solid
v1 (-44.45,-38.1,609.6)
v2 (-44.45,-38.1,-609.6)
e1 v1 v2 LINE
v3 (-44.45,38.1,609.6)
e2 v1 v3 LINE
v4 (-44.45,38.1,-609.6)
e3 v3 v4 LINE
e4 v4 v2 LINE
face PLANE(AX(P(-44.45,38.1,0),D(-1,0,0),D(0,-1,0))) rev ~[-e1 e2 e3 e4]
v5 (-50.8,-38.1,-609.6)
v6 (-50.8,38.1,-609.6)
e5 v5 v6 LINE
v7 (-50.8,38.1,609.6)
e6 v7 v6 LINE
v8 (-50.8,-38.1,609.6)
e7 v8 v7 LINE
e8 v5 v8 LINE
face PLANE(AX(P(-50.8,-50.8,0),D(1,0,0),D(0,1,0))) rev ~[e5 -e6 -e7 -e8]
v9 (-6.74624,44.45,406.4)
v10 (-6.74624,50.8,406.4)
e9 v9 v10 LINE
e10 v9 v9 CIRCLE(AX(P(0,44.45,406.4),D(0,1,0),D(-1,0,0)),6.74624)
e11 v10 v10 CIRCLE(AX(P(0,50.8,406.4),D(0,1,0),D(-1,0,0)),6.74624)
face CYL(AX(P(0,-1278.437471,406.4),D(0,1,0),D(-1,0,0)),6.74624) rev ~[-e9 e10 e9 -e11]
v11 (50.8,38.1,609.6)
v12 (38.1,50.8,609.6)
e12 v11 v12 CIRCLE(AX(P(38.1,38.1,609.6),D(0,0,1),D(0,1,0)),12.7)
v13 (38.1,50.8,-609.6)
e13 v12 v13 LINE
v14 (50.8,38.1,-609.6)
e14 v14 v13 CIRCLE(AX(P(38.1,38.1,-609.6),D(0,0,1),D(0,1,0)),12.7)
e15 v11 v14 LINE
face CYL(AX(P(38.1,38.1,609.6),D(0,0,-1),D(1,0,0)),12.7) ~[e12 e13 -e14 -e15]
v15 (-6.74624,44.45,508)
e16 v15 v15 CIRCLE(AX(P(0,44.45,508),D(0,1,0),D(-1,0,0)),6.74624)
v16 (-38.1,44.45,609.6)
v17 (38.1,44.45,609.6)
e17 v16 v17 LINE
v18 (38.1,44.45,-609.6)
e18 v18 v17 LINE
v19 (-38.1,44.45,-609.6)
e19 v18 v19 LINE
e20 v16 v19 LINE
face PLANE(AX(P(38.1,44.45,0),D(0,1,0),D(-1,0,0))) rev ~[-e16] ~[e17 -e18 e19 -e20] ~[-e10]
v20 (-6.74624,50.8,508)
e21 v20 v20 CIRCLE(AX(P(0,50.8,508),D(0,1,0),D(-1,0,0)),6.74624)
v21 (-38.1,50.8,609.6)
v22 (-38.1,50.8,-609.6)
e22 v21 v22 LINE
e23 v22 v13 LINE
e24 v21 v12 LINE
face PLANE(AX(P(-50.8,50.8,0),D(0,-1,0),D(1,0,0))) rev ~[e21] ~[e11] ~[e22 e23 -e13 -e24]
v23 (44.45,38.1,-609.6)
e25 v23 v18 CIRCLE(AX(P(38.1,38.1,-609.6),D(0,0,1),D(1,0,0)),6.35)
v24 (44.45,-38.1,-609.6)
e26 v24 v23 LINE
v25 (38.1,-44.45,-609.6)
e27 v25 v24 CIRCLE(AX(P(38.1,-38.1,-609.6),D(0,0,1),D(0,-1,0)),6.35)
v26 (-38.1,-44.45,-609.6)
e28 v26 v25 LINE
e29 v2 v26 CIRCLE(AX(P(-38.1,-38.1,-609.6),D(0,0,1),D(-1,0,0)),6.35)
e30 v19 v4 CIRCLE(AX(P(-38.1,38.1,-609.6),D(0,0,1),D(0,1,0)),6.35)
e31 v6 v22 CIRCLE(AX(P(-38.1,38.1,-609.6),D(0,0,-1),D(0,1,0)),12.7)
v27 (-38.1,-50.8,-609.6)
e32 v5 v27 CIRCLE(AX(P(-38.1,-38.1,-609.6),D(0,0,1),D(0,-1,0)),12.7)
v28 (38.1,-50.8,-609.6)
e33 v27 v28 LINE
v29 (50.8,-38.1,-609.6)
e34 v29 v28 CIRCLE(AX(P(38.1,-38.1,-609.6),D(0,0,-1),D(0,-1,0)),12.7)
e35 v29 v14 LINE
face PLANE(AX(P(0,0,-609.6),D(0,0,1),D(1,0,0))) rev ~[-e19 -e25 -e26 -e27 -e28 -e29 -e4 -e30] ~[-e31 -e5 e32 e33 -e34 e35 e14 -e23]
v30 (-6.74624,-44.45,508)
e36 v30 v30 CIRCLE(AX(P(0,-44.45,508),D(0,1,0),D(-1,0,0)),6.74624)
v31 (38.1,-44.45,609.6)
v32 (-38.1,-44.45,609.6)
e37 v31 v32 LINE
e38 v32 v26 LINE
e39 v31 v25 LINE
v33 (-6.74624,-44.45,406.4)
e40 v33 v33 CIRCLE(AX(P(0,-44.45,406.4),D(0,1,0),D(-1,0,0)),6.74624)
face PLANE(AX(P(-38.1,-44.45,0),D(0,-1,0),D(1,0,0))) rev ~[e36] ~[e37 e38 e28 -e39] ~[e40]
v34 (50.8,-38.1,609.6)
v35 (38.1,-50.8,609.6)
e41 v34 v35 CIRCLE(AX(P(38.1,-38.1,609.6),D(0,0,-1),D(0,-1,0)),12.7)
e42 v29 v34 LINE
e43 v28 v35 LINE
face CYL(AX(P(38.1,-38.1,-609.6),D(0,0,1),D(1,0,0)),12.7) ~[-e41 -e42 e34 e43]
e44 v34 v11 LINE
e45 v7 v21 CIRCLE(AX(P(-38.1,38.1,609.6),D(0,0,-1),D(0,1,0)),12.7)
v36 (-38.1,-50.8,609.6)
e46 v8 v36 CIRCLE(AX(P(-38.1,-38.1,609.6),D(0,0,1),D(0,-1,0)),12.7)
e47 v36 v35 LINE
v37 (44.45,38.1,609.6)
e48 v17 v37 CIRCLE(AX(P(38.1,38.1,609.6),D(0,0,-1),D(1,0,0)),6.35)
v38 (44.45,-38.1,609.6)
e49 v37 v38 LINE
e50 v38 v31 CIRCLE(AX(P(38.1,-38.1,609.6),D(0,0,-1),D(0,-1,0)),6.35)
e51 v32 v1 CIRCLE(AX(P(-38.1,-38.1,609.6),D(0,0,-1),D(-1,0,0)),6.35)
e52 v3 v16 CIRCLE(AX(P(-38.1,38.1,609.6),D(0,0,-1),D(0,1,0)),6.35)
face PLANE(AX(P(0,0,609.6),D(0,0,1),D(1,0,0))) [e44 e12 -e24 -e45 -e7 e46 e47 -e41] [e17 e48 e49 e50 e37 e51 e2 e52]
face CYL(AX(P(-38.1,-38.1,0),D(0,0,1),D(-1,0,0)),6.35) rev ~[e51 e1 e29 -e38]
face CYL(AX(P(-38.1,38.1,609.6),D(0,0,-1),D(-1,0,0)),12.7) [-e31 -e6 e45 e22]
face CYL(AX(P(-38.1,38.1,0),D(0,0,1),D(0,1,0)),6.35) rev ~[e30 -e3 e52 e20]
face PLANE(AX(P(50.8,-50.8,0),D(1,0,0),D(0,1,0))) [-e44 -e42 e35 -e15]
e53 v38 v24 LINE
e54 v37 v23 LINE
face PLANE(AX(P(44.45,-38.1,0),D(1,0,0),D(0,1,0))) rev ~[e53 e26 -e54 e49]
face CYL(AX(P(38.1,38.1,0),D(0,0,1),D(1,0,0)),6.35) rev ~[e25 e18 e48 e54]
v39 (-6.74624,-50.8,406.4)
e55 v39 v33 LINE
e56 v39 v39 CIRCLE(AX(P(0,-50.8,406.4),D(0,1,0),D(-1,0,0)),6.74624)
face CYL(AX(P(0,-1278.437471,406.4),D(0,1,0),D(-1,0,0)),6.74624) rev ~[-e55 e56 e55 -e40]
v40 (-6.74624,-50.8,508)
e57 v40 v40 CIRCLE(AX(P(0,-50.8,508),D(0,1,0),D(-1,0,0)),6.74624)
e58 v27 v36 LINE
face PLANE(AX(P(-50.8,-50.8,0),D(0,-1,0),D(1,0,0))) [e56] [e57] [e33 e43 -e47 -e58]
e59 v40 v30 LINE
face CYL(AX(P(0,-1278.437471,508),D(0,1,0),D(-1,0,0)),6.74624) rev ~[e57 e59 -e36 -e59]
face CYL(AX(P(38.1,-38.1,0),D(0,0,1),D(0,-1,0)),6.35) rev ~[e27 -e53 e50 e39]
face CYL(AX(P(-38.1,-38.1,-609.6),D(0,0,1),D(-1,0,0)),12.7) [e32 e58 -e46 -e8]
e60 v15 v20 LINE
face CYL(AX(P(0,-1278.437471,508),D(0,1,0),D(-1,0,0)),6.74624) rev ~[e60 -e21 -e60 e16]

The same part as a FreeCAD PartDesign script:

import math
import FreeCAD as App
import Part
import Sketcher

V = App.Vector
Q = App.Units.Quantity


def edges_at(feature, points):
    """Names of the edges that pass closest to the given points."""
    edges = feature.Shape.Edges
    near = lambda p: min(range(len(edges)), key=lambda i: edges[i].distToShape(Part.Vertex(*p))[0])
    return sorted({f"Edge{near(p) + 1}" for p in points})


def add_polygon(sketch, points):
    """Adds a closed chain of lines whose ends are joined by coincident constraints."""
    first, n = sketch.GeometryCount, len(points)
    for a, b in zip(points, points[1:] + points[:1]):
        sketch.addGeometry(Part.LineSegment(App.Vector(*a, 0), App.Vector(*b, 0)), False)
    for i in range(n):
        sketch.addConstraint(Sketcher.Constraint("Coincident", first + i, 2, first + (i + 1) % n, 1))

doc = App.newDocument("Part")
body = doc.addObject("PartDesign::Body", "Body")

# Sketch on XY plane
sketch1 = doc.addObject("Sketcher::SketchObject", "Sketch")
body.addObject(sketch1)
sketch1.AttachmentSupport = (doc.XY_Plane, [""])
sketch1.MapMode = "FlatFace"
add_polygon(sketch1, [(-51, 51), (-51, -51), (51, -51), (51, 51)])  # lines 0-3
sketch1.addConstraint([
    Sketcher.Constraint("Vertical", 0),
    Sketcher.Constraint("Horizontal", 1),
    Sketcher.Constraint("Vertical", 2),
    Sketcher.Constraint("Horizontal", 3),
    Sketcher.Constraint("Symmetric", 0, 2, 2, 2, -1, 1),
    Sketcher.Constraint("Equal", 3, 0),
    Sketcher.Constraint("DistanceX", 1, 1, 1, 2, Q("4 in")),
])
pad1 = doc.addObject("PartDesign::Pad", "Pad")
body.addObject(pad1)
pad1.Profile = sketch1
pad1.Length = Q("48 in")
pad1.Midplane = True
doc.recompute()

fillet = doc.addObject("PartDesign::Fillet", "Fillet")
body.addObject(fillet)
fillet.Base = (pad1, edges_at(pad1, [
    (-50.8, 50.8, 0),
    (50.8, 50.8, 0),
    (50.8, -50.8, 0),
    (-50.8, -50.8, 0),
]))
fillet.Radius = Q("0.5 in")

# Sketch on XY plane
sketch2 = doc.addObject("Sketcher::SketchObject", "Sketch001")
body.addObject(sketch2)
sketch2.AttachmentSupport = (doc.XY_Plane, [""])
sketch2.MapMode = "FlatFace"
sketch2.addGeometry([
    Part.LineSegment(V(38, 44, 0), V(-38, 44, 0)),  # 0
    Part.ArcOfCircle(Part.Circle(V(-38, 38, 0), V(0, 0, 1), 6), math.radians(90), math.radians(180)),  # 1
    Part.LineSegment(V(-44, 38, 0), V(-44, -38, 0)),  # 2
    Part.ArcOfCircle(Part.Circle(V(-38, -38, 0), V(0, 0, 1), 6), math.radians(180), math.radians(270)),  # 3
    Part.LineSegment(V(-38, -44, 0), V(38, -44, 0)),  # 4
    Part.ArcOfCircle(Part.Circle(V(38, -38, 0), V(0, 0, 1), 6), math.radians(-90), math.radians(0)),  # 5
    Part.LineSegment(V(44, -38, 0), V(44, 38, 0)),  # 6
    Part.ArcOfCircle(Part.Circle(V(38, 38, 0), V(0, 0, 1), 6), math.radians(0), math.radians(90)),  # 7
], False)
sketch2.addConstraint([
    Sketcher.Constraint("Tangent", 0, 2, 1, 1),
    Sketcher.Constraint("Tangent", 1, 2, 2, 1),
    Sketcher.Constraint("Tangent", 2, 2, 3, 1),
    Sketcher.Constraint("Tangent", 3, 2, 4, 1),
    Sketcher.Constraint("Tangent", 4, 2, 5, 1),
    Sketcher.Constraint("Tangent", 5, 2, 6, 1),
    Sketcher.Constraint("Tangent", 6, 2, 7, 1),
    Sketcher.Constraint("Tangent", 7, 2, 0, 1),
    Sketcher.Constraint("Horizontal", 0),
    Sketcher.Constraint("Vertical", 2),
    Sketcher.Constraint("Horizontal", 4),
    Sketcher.Constraint("Vertical", 6),
    Sketcher.Constraint("Equal", 1, 3),
    Sketcher.Constraint("Equal", 3, 5),
    Sketcher.Constraint("Equal", 5, 7),
    Sketcher.Constraint("Symmetric", 1, 3, 5, 3, -1, 1),
    Sketcher.Constraint("Equal", 4, 2),
    Sketcher.Constraint("DistanceX", 0, 2, 0, 1, Q("3 in")),
    Sketcher.Constraint("Radius", 1, Q("0.25 in")),
])
pocket1 = doc.addObject("PartDesign::Pocket", "Pocket")
body.addObject(pocket1)
pocket1.Profile = sketch2
pocket1.Type = "ThroughAll"
pocket1.Midplane = True

# Sketch on XZ plane
sketch3 = doc.addObject("Sketcher::SketchObject", "Sketch002")
body.addObject(sketch3)
sketch3.AttachmentSupport = (doc.XZ_Plane, [""])
sketch3.MapMode = "FlatFace"
sketch3.AttachmentOffset = App.Placement(V(0, 0, 2 * 25.4), App.Rotation())
sketch3.addGeometry([
    Part.Circle(V(0, 508, 0), V(0, 0, 1), 7),
    Part.Circle(V(0, 406, 0), V(0, 0, 1), 7),
], False)
sketch3.addConstraint([
    Sketcher.Constraint("Equal", 0, 1),
    Sketcher.Constraint("PointOnObject", 0, 3, -2),
    Sketcher.Constraint("PointOnObject", 1, 3, -2),
    Sketcher.Constraint("DistanceY", -1, 1, 0, 3, Q("20 in")),
    Sketcher.Constraint("DistanceY", -1, 1, 1, 3, Q("16 in")),
    Sketcher.Constraint("Diameter", 0, Q("0.5312 in")),
])
doc.recompute()
hole = doc.addObject("PartDesign::Hole", "Hole")
body.addObject(hole)
hole.Profile = sketch3
hole.ThreadType = "None"
hole.Diameter = Q("0.5312 in")
hole.DepthType = "ThroughAll"

doc.recompute()
